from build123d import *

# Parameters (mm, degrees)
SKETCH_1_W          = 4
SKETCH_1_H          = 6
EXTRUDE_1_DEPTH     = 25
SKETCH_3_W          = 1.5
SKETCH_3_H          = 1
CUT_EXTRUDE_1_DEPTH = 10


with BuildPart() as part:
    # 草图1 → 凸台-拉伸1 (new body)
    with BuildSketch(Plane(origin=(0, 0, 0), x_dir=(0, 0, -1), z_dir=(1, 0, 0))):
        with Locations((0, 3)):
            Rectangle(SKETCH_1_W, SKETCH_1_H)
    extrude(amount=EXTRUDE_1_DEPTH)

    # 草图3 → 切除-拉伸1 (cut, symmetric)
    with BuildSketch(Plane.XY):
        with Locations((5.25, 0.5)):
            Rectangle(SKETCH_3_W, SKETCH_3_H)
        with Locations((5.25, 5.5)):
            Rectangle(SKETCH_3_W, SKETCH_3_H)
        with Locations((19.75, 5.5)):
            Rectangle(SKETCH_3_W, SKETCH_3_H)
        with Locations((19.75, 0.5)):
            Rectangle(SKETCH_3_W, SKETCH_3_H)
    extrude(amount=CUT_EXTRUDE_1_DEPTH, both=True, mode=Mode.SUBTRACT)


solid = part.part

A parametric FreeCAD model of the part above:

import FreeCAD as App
import Part
import Sketcher
from FreeCAD import Vector
Q = App.Units.Quantity

doc = App.newDocument("Part")
body = doc.addObject("PartDesign::Body", "Body")

# Sketch on YZ plane
sketch1 = body.newObject("Sketcher::SketchObject", "Sketch")
sketch1.AttachmentSupport = (doc.getObject("YZ_Plane"), [""])
sketch1.MapMode = "FlatFace"
sketch1.addGeometry([
    Part.LineSegment(Vector(6, 2, 0), Vector(0, 2, 0)),
    Part.LineSegment(Vector(0, 2, 0), Vector(0, -2, 0)),
    Part.LineSegment(Vector(0, -2, 0), Vector(6, -2, 0)),
    Part.LineSegment(Vector(6, -2, 0), Vector(6, 2, 0)),
], False)
sketch1.addConstraint([
    Sketcher.Constraint("Coincident", 0, 2, 1, 1),
    Sketcher.Constraint("Coincident", 1, 2, 2, 1),
    Sketcher.Constraint("Coincident", 2, 2, 3, 1),
    Sketcher.Constraint("Coincident", 3, 2, 0, 1),
    Sketcher.Constraint("Horizontal", 0),
    Sketcher.Constraint("Vertical", 1),
    Sketcher.Constraint("Horizontal", 2),
    Sketcher.Constraint("Vertical", 3),
    Sketcher.Constraint("Symmetric", 0, 2, 1, 2, -1, 1),
    Sketcher.Constraint("DistanceX", 0, 2, 0, 1, Q("6 mm")),
    Sketcher.Constraint("DistanceY", 1, 2, 1, 1, Q("4 mm")),
])
pad1 = body.newObject("PartDesign::Pad", "Pad")
pad1.Profile = sketch1
pad1.Length = 25

# Sketch on XY plane
sketch2 = body.newObject("Sketcher::SketchObject", "Sketch001")
sketch2.AttachmentSupport = (doc.getObject("XY_Plane"), [""])
sketch2.MapMode = "FlatFace"
sketch2.addGeometry([
    Part.LineSegment(Vector(4.5, 1, 0), Vector(4.5, 0, 0)),  # 0
    Part.LineSegment(Vector(4.5, 0, 0), Vector(6, 0, 0)),  # 1
    Part.LineSegment(Vector(6, 0, 0), Vector(6, 1, 0)),  # 2
    Part.LineSegment(Vector(6, 1, 0), Vector(4.5, 1, 0)),  # 3
    Part.LineSegment(Vector(4.5, 6, 0), Vector(4.5, 5, 0)),  # 4
    Part.LineSegment(Vector(4.5, 5, 0), Vector(6, 5, 0)),  # 5
    Part.LineSegment(Vector(6, 5, 0), Vector(6, 6, 0)),  # 6
    Part.LineSegment(Vector(6, 6, 0), Vector(4.5, 6, 0)),  # 7
    Part.LineSegment(Vector(19, 6, 0), Vector(19, 5, 0)),  # 8
    Part.LineSegment(Vector(19, 5, 0), Vector(20.5, 5, 0)),  # 9
    Part.LineSegment(Vector(20.5, 5, 0), Vector(20.5, 6, 0)),  # 10
    Part.LineSegment(Vector(20.5, 6, 0), Vector(19, 6, 0)),  # 11
    Part.LineSegment(Vector(19, 1, 0), Vector(19, 0, 0)),  # 12
    Part.LineSegment(Vector(19, 0, 0), Vector(20.5, 0, 0)),  # 13
    Part.LineSegment(Vector(20.5, 0, 0), Vector(20.5, 1, 0)),  # 14
    Part.LineSegment(Vector(20.5, 1, 0), Vector(19, 1, 0)),  # 15
], False)
sketch2.addConstraint([
    Sketcher.Constraint("Coincident", 0, 2, 1, 1),
    Sketcher.Constraint("Coincident", 1, 2, 2, 1),
    Sketcher.Constraint("Coincident", 2, 2, 3, 1),
    Sketcher.Constraint("Coincident", 3, 2, 0, 1),
    Sketcher.Constraint("Coincident", 4, 2, 5, 1),
    Sketcher.Constraint("Coincident", 5, 2, 6, 1),
    Sketcher.Constraint("Coincident", 6, 2, 7, 1),
    Sketcher.Constraint("Coincident", 7, 2, 4, 1),
    Sketcher.Constraint("Coincident", 8, 2, 9, 1),
    Sketcher.Constraint("Coincident", 9, 2, 10, 1),
    Sketcher.Constraint("Coincident", 10, 2, 11, 1),
    Sketcher.Constraint("Coincident", 11, 2, 8, 1),
    Sketcher.Constraint("Coincident", 12, 2, 13, 1),
    Sketcher.Constraint("Coincident", 13, 2, 14, 1),
    Sketcher.Constraint("Coincident", 14, 2, 15, 1),
    Sketcher.Constraint("Coincident", 15, 2, 12, 1),
    Sketcher.Constraint("Vertical", 0),
    Sketcher.Constraint("Horizontal", 1),
    Sketcher.Constraint("Vertical", 2),
    Sketcher.Constraint("Horizontal", 3),
    Sketcher.Constraint("Vertical", 4),
    Sketcher.Constraint("Horizontal", 5),
    Sketcher.Constraint("Vertical", 6),
    Sketcher.Constraint("Horizontal", 7),
    Sketcher.Constraint("Vertical", 8),
    Sketcher.Constraint("Horizontal", 9),
    Sketcher.Constraint("Vertical", 10),
    Sketcher.Constraint("Horizontal", 11),
    Sketcher.Constraint("Vertical", 12),
    Sketcher.Constraint("Horizontal", 13),
    Sketcher.Constraint("Vertical", 14),
    Sketcher.Constraint("Horizontal", 15),
    Sketcher.Constraint("PointOnObject", 0, 2, -1),
    Sketcher.Constraint("PointOnObject", 12, 2, -1),
    Sketcher.Constraint("Horizontal", 5, 2, 8, 2),
    Sketcher.Constraint("Horizontal", 7, 2, 10, 2),
    Sketcher.Constraint("Horizontal", 3, 2, 14, 2),
    Sketcher.Constraint("Vertical", 3, 2, 4, 2),
    Sketcher.Constraint("Vertical", 2, 2, 5, 2),
    Sketcher.Constraint("Vertical", 11, 2, 12, 2),
    Sketcher.Constraint("Vertical", 10, 2, 13, 2),
    Sketcher.Constraint("Equal", 7, 9),
    Sketcher.Constraint("Equal", 2, 4),
    Sketcher.Constraint("DistanceY", 0, 2, 0, 1, Q("1 mm")),
    Sketcher.Constraint("DistanceX", 1, 1, 1, 2, Q("1.5 mm")),
    Sketcher.Constraint("DistanceX", -1, 1, 1, 2, Q("6 mm")),
    Sketcher.Constraint("DistanceY", -1, 1, 4, 2, Q("5 mm")),
    Sketcher.Constraint("DistanceX", -1, 1, 8, 2, Q("19 mm")),
])
pocket1 = body.newObject("PartDesign::Pocket", "Pocket")
pocket1.Profile = sketch2
pocket1.Length = 20
pocket1.Midplane = True

doc.recompute()
